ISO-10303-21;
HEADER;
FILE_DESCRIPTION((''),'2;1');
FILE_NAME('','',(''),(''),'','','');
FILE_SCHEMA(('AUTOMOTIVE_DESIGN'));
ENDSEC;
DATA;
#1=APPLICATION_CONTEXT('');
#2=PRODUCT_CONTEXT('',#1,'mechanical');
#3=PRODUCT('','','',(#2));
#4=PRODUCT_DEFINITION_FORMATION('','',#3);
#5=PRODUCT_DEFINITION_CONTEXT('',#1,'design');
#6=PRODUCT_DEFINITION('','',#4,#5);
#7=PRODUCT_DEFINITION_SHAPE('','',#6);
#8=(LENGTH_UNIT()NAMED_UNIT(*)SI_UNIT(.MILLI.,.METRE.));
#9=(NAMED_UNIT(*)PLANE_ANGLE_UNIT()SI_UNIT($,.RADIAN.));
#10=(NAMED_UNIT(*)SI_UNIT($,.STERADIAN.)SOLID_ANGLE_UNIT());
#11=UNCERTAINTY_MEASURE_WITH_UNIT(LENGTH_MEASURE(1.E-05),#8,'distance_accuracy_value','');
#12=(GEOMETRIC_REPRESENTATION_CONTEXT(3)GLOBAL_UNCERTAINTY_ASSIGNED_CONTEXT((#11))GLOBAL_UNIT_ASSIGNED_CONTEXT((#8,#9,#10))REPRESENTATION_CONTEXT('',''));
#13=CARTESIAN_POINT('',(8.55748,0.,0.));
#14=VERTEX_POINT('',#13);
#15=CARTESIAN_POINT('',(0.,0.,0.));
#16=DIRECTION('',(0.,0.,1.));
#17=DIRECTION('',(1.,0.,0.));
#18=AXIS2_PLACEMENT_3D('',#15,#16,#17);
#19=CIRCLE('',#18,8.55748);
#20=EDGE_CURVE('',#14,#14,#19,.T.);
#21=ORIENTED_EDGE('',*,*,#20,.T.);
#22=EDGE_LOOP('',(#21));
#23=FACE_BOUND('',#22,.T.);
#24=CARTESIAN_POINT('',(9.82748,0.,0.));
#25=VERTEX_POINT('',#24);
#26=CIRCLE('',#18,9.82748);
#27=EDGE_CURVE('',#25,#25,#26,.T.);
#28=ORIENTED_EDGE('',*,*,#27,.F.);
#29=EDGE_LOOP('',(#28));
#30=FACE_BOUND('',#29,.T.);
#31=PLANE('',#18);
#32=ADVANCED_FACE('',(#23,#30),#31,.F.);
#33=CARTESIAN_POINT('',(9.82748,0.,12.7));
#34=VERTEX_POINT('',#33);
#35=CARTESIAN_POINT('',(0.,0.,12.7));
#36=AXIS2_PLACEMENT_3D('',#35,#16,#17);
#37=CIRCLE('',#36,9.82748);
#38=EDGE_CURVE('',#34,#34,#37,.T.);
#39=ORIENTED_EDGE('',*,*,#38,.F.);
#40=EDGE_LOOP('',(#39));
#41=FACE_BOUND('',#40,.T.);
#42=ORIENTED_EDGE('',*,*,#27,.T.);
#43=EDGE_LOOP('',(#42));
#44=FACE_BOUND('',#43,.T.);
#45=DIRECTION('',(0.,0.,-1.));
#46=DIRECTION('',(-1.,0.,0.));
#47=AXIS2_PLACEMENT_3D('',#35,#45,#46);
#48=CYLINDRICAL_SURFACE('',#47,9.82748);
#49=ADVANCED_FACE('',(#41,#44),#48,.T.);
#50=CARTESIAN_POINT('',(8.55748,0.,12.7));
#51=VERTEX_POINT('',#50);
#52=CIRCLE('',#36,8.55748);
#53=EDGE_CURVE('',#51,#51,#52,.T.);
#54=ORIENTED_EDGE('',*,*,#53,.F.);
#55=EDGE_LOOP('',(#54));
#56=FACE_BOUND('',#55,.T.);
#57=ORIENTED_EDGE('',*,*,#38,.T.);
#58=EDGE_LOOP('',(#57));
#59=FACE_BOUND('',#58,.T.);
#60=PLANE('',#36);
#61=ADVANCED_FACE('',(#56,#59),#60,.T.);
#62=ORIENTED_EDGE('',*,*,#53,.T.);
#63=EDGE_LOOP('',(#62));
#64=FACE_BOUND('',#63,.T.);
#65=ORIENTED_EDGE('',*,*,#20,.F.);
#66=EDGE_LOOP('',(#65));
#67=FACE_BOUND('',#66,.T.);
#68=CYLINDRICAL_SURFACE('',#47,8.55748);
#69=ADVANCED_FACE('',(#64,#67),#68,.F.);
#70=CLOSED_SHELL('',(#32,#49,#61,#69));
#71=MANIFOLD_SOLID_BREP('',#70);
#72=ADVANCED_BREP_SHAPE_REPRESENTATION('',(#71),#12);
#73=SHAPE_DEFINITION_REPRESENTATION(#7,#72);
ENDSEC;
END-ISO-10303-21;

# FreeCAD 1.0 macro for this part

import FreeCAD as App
import Part
import Sketcher

V = App.Vector
Q = App.Units.Quantity

doc = App.newDocument("Part")
body = doc.addObject("PartDesign::Body", "Body")

sketch1 = body.newObject("Sketcher::SketchObject", "Sketch")
sketch1.AttachmentSupport = (doc.getObject("XY_Plane"), [""])
sketch1.MapMode = "FlatFace"
sketch1.addGeometry([
    Part.Circle(V(0, 0, 0), V(0, 0, 1), 10),
    Part.Circle(V(0, 0, 0), V(0, 0, 1), 9),
], False)
sketch1.addConstraint([
    Sketcher.Constraint("Coincident", 0, 3, -1, 1),
    Sketcher.Constraint("Coincident", 1, 3, -1, 1),
    Sketcher.Constraint("Diameter", 0, Q("19.65496 mm")),
    Sketcher.Constraint("Diameter", 1, Q("17.11496 mm")),
])
pad1 = body.newObject("PartDesign::Pad", "Pad")
pad1.Profile = sketch1
pad1.Length = Q("0.5 in")

doc.recompute()
